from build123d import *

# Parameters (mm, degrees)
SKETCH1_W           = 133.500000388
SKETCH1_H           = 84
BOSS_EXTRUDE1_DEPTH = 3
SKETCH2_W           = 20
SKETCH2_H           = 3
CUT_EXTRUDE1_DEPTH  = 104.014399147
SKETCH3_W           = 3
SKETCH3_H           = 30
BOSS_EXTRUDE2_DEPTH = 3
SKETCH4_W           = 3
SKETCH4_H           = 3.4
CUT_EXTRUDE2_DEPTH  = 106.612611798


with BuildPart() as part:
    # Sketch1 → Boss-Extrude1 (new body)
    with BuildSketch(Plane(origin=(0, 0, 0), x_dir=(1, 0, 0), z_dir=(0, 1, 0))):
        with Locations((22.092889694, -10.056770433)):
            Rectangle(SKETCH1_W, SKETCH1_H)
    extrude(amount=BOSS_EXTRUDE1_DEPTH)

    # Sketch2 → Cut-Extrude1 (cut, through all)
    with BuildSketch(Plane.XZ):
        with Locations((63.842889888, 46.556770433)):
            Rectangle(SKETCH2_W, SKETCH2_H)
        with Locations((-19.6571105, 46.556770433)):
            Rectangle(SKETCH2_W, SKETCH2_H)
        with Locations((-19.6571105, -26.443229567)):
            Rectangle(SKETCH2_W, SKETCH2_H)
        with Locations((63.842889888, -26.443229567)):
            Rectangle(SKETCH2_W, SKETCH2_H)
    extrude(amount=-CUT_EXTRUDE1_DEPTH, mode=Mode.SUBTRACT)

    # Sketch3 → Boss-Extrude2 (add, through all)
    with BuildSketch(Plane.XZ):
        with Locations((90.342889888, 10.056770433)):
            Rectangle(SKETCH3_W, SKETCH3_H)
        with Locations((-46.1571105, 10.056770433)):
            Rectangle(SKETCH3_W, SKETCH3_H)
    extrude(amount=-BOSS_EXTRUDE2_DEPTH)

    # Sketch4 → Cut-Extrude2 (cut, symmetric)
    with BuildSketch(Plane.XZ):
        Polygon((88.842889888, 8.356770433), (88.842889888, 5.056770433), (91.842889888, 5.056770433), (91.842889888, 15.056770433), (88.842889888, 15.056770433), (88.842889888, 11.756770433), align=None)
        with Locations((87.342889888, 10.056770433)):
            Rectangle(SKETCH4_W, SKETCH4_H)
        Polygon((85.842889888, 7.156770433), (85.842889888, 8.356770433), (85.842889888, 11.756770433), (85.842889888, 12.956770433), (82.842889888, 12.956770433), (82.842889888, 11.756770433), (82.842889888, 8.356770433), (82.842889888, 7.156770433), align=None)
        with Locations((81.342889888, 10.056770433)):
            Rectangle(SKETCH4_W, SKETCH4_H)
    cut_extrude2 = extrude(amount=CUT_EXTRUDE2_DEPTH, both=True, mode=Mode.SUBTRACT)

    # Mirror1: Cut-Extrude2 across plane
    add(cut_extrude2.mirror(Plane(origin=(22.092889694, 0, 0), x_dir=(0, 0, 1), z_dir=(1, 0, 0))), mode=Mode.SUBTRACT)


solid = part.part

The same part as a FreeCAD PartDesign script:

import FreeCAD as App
import Part
import Sketcher

V = App.Vector
Q = App.Units.Quantity

doc = App.newDocument("Part")
body = doc.addObject("PartDesign::Body", "Body")

# Sketch on XZ plane
sketch1 = body.newObject("Sketcher::SketchObject", "Sketch")
sketch1.AttachmentSupport = (doc.getObject("XZ_Plane"), [""])
sketch1.MapMode = "FlatFace"
sketch1.addGeometry(Part.LineSegment(V(-45, -32, 0), V(-45, 52, 0)), False)
sketch1.addGeometry(Part.LineSegment(V(-45, 52, 0), V(89, 52, 0)), False)
sketch1.addGeometry(Part.LineSegment(V(89, 52, 0), V(89, -32, 0)), False)
sketch1.addGeometry(Part.LineSegment(V(89, -32, 0), V(-45, -32, 0)), False)
sketch1.addConstraint(Sketcher.Constraint("Coincident", 0, 2, 1, 1))
sketch1.addConstraint(Sketcher.Constraint("Coincident", 1, 2, 2, 1))
sketch1.addConstraint(Sketcher.Constraint("Coincident", 2, 2, 3, 1))
sketch1.addConstraint(Sketcher.Constraint("Coincident", 3, 2, 0, 1))
sketch1.addConstraint(Sketcher.Constraint("Vertical", 0))
sketch1.addConstraint(Sketcher.Constraint("Horizontal", 1))
sketch1.addConstraint(Sketcher.Constraint("Vertical", 2))
sketch1.addConstraint(Sketcher.Constraint("Horizontal", 3))
sketch1.addConstraint(Sketcher.Constraint("DistanceY", 0, 1, 0, 2, Q("84 mm")))
sketch1.addConstraint(Sketcher.Constraint("DistanceX", 1, 1, 1, 2, Q("133.5 mm")))
sketch1.addConstraint(Sketcher.Constraint("DistanceX", 0, 2, -1, 1, Q("44.657111 mm")))
sketch1.addConstraint(Sketcher.Constraint("DistanceY", -1, 1, 0, 2, Q("52.05677 mm")))
pad1 = body.newObject("PartDesign::Pad", "Pad")
pad1.Profile = sketch1
pad1.Length = 3
pad1.Reversed = True

# Sketch on XZ plane
sketch2 = body.newObject("Sketcher::SketchObject", "Sketch001")
sketch2.AttachmentSupport = (doc.getObject("XZ_Plane"), [""])
sketch2.MapMode = "FlatFace"
sketch2.addGeometry(Part.LineSegment(V(53.8, 48.1, 0), V(53.8, 45.1, 0)), False)
sketch2.addGeometry(Part.LineSegment(V(53.8, 45.1, 0), V(73.8, 45.1, 0)), False)
sketch2.addGeometry(Part.LineSegment(V(73.8, 45.1, 0), V(73.8, 48.1, 0)), False)
sketch2.addGeometry(Part.LineSegment(V(73.8, 48.1, 0), V(53.8, 48.1, 0)), False)
sketch2.addGeometry(Part.LineSegment(V(-29.7, 48.1, 0), V(-29.7, 45.1, 0)), False)
sketch2.addGeometry(Part.LineSegment(V(-29.7, 45.1, 0), V(-9.7, 45.1, 0)), False)
sketch2.addGeometry(Part.LineSegment(V(-9.7, 45.1, 0), V(-9.7, 48.1, 0)), False)
sketch2.addGeometry(Part.LineSegment(V(-9.7, 48.1, 0), V(-29.7, 48.1, 0)), False)
sketch2.addGeometry(Part.LineSegment(V(-29.7, -24.9, 0), V(-29.7, -27.9, 0)), False)
sketch2.addGeometry(Part.LineSegment(V(-29.7, -27.9, 0), V(-9.7, -27.9, 0)), False)
sketch2.addGeometry(Part.LineSegment(V(-9.7, -27.9, 0), V(-9.7, -24.9, 0)), False)
sketch2.addGeometry(Part.LineSegment(V(-9.7, -24.9, 0), V(-29.7, -24.9, 0)), False)
sketch2.addGeometry(Part.LineSegment(V(53.8, -24.9, 0), V(53.8, -27.9, 0)), False)
sketch2.addGeometry(Part.LineSegment(V(53.8, -27.9, 0), V(73.8, -27.9, 0)), False)
sketch2.addGeometry(Part.LineSegment(V(73.8, -27.9, 0), V(73.8, -24.9, 0)), False)
sketch2.addGeometry(Part.LineSegment(V(73.8, -24.9, 0), V(53.8, -24.9, 0)), False)
sketch2.addConstraint(Sketcher.Constraint("Coincident", 0, 2, 1, 1))
sketch2.addConstraint(Sketcher.Constraint("Coincident", 1, 2, 2, 1))
sketch2.addConstraint(Sketcher.Constraint("Coincident", 2, 2, 3, 1))
sketch2.addConstraint(Sketcher.Constraint("Coincident", 3, 2, 0, 1))
sketch2.addConstraint(Sketcher.Constraint("Coincident", 4, 2, 5, 1))
sketch2.addConstraint(Sketcher.Constraint("Coincident", 5, 2, 6, 1))
sketch2.addConstraint(Sketcher.Constraint("Coincident", 6, 2, 7, 1))
sketch2.addConstraint(Sketcher.Constraint("Coincident", 7, 2, 4, 1))
sketch2.addConstraint(Sketcher.Constraint("Coincident", 8, 2, 9, 1))
sketch2.addConstraint(Sketcher.Constraint("Coincident", 9, 2, 10, 1))
sketch2.addConstraint(Sketcher.Constraint("Coincident", 10, 2, 11, 1))
sketch2.addConstraint(Sketcher.Constraint("Coincident", 11, 2, 8, 1))
sketch2.addConstraint(Sketcher.Constraint("Coincident", 12, 2, 13, 1))
sketch2.addConstraint(Sketcher.Constraint("Coincident", 13, 2, 14, 1))
sketch2.addConstraint(Sketcher.Constraint("Coincident", 14, 2, 15, 1))
sketch2.addConstraint(Sketcher.Constraint("Coincident", 15, 2, 12, 1))
sketch2.addConstraint(Sketcher.Constraint("Vertical", 0))
sketch2.addConstraint(Sketcher.Constraint("Horizontal", 1))
sketch2.addConstraint(Sketcher.Constraint("Vertical", 2))
sketch2.addConstraint(Sketcher.Constraint("Horizontal", 3))
sketch2.addConstraint(Sketcher.Constraint("Vertical", 4))
sketch2.addConstraint(Sketcher.Constraint("Horizontal", 5))
sketch2.addConstraint(Sketcher.Constraint("Vertical", 6))
sketch2.addConstraint(Sketcher.Constraint("Horizontal", 7))
sketch2.addConstraint(Sketcher.Constraint("Vertical", 8))
sketch2.addConstraint(Sketcher.Constraint("Horizontal", 9))
sketch2.addConstraint(Sketcher.Constraint("Vertical", 10))
sketch2.addConstraint(Sketcher.Constraint("Horizontal", 11))
sketch2.addConstraint(Sketcher.Constraint("Vertical", 12))
sketch2.addConstraint(Sketcher.Constraint("Horizontal", 13))
sketch2.addConstraint(Sketcher.Constraint("Vertical", 14))
sketch2.addConstraint(Sketcher.Constraint("Horizontal", 15))
sketch2.addConstraint(Sketcher.Constraint("Horizontal", 1, 2, 4, 2))
sketch2.addConstraint(Sketcher.Constraint("Horizontal", 3, 2, 6, 2))
sketch2.addConstraint(Sketcher.Constraint("Horizontal", 9, 2, 12, 2))
sketch2.addConstraint(Sketcher.Constraint("Horizontal", 11, 2, 14, 2))
sketch2.addConstraint(Sketcher.Constraint("Vertical", 7, 2, 8, 2))
sketch2.addConstraint(Sketcher.Constraint("Vertical", 6, 2, 9, 2))
sketch2.addConstraint(Sketcher.Constraint("Vertical", 3, 2, 12, 2))
sketch2.addConstraint(Sketcher.Constraint("Vertical", 2, 2, 13, 2))
sketch2.addConstraint(Sketcher.Constraint("Equal", 3, 5))
sketch2.addConstraint(Sketcher.Constraint("Equal", 6, 8))
sketch2.addConstraint(Sketcher.Constraint("DistanceX", 1, 1, 1, 2, Q("20 mm")))
sketch2.addConstraint(Sketcher.Constraint("DistanceY", 0, 2, 0, 1, Q("3 mm")))
sketch2.addConstraint(Sketcher.Constraint("DistanceY", 8, 2, 4, 2, Q("73 mm")))
sketch2.addConstraint(Sketcher.Constraint("DistanceX", 4, 2, 0, 2, Q("83.5 mm")))
sketch2.addConstraint(Sketcher.Constraint("DistanceX", -1, 1, 0, 2, Q("53.84289 mm")))
sketch2.addConstraint(Sketcher.Constraint("DistanceY", -1, 1, 0, 2, Q("45.05677 mm")))
pocket1 = body.newObject("PartDesign::Pocket", "Pocket")
pocket1.Profile = sketch2
pocket1.Type = "ThroughAll"

# Sketch on XZ plane
sketch3 = body.newObject("Sketcher::SketchObject", "Sketch002")
sketch3.AttachmentSupport = (doc.getObject("XZ_Plane"), [""])
sketch3.MapMode = "FlatFace"
sketch3.addGeometry(Part.LineSegment(V(88.8, 25.1, 0), V(88.8, -4.9, 0)), False)
sketch3.addGeometry(Part.LineSegment(V(88.8, -4.9, 0), V(91.8, -4.9, 0)), False)
sketch3.addGeometry(Part.LineSegment(V(91.8, -4.9, 0), V(91.8, 25.1, 0)), False)
sketch3.addGeometry(Part.LineSegment(V(91.8, 25.1, 0), V(88.8, 25.1, 0)), False)
sketch3.addGeometry(Part.LineSegment(V(-47.7, 25.1, 0), V(-47.7, -4.9, 0)), False)
sketch3.addGeometry(Part.LineSegment(V(-47.7, -4.9, 0), V(-44.7, -4.9, 0)), False)
sketch3.addGeometry(Part.LineSegment(V(-44.7, -4.9, 0), V(-44.7, 25.1, 0)), False)
sketch3.addGeometry(Part.LineSegment(V(-44.7, 25.1, 0), V(-47.7, 25.1, 0)), False)
sketch3.addConstraint(Sketcher.Constraint("Coincident", 0, 2, 1, 1))
sketch3.addConstraint(Sketcher.Constraint("Coincident", 1, 2, 2, 1))
sketch3.addConstraint(Sketcher.Constraint("Coincident", 2, 2, 3, 1))
sketch3.addConstraint(Sketcher.Constraint("Coincident", 3, 2, 0, 1))
sketch3.addConstraint(Sketcher.Constraint("Coincident", 4, 2, 5, 1))
sketch3.addConstraint(Sketcher.Constraint("Coincident", 5, 2, 6, 1))
sketch3.addConstraint(Sketcher.Constraint("Coincident", 6, 2, 7, 1))
sketch3.addConstraint(Sketcher.Constraint("Coincident", 7, 2, 4, 1))
sketch3.addConstraint(Sketcher.Constraint("Vertical", 0))
sketch3.addConstraint(Sketcher.Constraint("Horizontal", 1))
sketch3.addConstraint(Sketcher.Constraint("Vertical", 2))
sketch3.addConstraint(Sketcher.Constraint("Horizontal", 3))
sketch3.addConstraint(Sketcher.Constraint("Vertical", 4))
sketch3.addConstraint(Sketcher.Constraint("Horizontal", 5))
sketch3.addConstraint(Sketcher.Constraint("Vertical", 6))
sketch3.addConstraint(Sketcher.Constraint("Horizontal", 7))
sketch3.addConstraint(Sketcher.Constraint("Horizontal", 1, 2, 4, 2))
sketch3.addConstraint(Sketcher.Constraint("Horizontal", 3, 2, 6, 2))
sketch3.addConstraint(Sketcher.Constraint("Equal", 3, 5))
sketch3.addConstraint(Sketcher.Constraint("DistanceX", 1, 1, 1, 2, Q("3 mm")))
sketch3.addConstraint(Sketcher.Constraint("DistanceY", 0, 2, 0, 1, Q("30 mm")))
sketch3.addConstraint(Sketcher.Constraint("DistanceX", 4, 2, 0, 2, Q("136.5 mm")))
sketch3.addConstraint(Sketcher.Constraint("DistanceX", -1, 1, 0, 2, Q("88.84289 mm")))
sketch3.addConstraint(Sketcher.Constraint("DistanceY", 0, 2, -1, 1, Q("4.94323 mm")))
pad2 = body.newObject("PartDesign::Pad", "Pad001")
pad2.Profile = sketch3
pad2.Type = "UpToLast"
pad2.Reversed = True

# Sketch on XZ plane
sketch4 = body.newObject("Sketcher::SketchObject", "Sketch003")
sketch4.AttachmentSupport = (doc.getObject("XZ_Plane"), [""])
sketch4.MapMode = "FlatFace"
sketch4.addGeometry(Part.LineSegment(V(88.8, 5.1, 0), V(91.8, 5.1, 0)), False)
sketch4.addGeometry(Part.LineSegment(V(91.8, 5.1, 0), V(91.8, 15.1, 0)), False)
sketch4.addGeometry(Part.LineSegment(V(91.8, 15.1, 0), V(88.8, 15.1, 0)), False)
sketch4.addGeometry(Part.LineSegment(V(88.8, 15.1, 0), V(88.8, 11.8, 0)), False)
sketch4.addGeometry(Part.LineSegment(V(88.8, 11.8, 0), V(85.8, 11.8, 0)), False)
sketch4.addGeometry(Part.LineSegment(V(85.8, 11.8, 0), V(85.8, 13, 0)), False)
sketch4.addGeometry(Part.LineSegment(V(85.8, 13, 0), V(82.8, 13, 0)), False)
sketch4.addGeometry(Part.LineSegment(V(82.8, 13, 0), V(82.8, 11.8, 0)), False)
sketch4.addGeometry(Part.LineSegment(V(82.8, 11.8, 0), V(79.8, 11.8, 0)), False)
sketch4.addGeometry(Part.LineSegment(V(79.8, 11.8, 0), V(79.8, 8.4, 0)), False)
sketch4.addGeometry(Part.LineSegment(V(79.8, 8.4, 0), V(82.8, 8.4, 0)), False)
sketch4.addGeometry(Part.LineSegment(V(82.8, 8.4, 0), V(82.8, 7.2, 0)), False)
sketch4.addGeometry(Part.LineSegment(V(82.8, 7.2, 0), V(85.8, 7.2, 0)), False)
sketch4.addGeometry(Part.LineSegment(V(85.8, 7.2, 0), V(85.8, 8.4, 0)), False)
sketch4.addGeometry(Part.LineSegment(V(85.8, 8.4, 0), V(88.8, 8.4, 0)), False)
sketch4.addGeometry(Part.LineSegment(V(88.8, 8.4, 0), V(88.8, 5.1, 0)), False)
sketch4.addConstraint(Sketcher.Constraint("Coincident", 0, 2, 1, 1))
sketch4.addConstraint(Sketcher.Constraint("Coincident", 1, 2, 2, 1))
sketch4.addConstraint(Sketcher.Constraint("Coincident", 2, 2, 3, 1))
sketch4.addConstraint(Sketcher.Constraint("Coincident", 3, 2, 4, 1))
sketch4.addConstraint(Sketcher.Constraint("Coincident", 4, 2, 5, 1))
sketch4.addConstraint(Sketcher.Constraint("Coincident", 5, 2, 6, 1))
sketch4.addConstraint(Sketcher.Constraint("Coincident", 6, 2, 7, 1))
sketch4.addConstraint(Sketcher.Constraint("Coincident", 7, 2, 8, 1))
sketch4.addConstraint(Sketcher.Constraint("Coincident", 8, 2, 9, 1))
sketch4.addConstraint(Sketcher.Constraint("Coincident", 9, 2, 10, 1))
sketch4.addConstraint(Sketcher.Constraint("Coincident", 10, 2, 11, 1))
sketch4.addConstraint(Sketcher.Constraint("Coincident", 11, 2, 12, 1))
sketch4.addConstraint(Sketcher.Constraint("Coincident", 12, 2, 13, 1))
sketch4.addConstraint(Sketcher.Constraint("Coincident", 13, 2, 14, 1))
sketch4.addConstraint(Sketcher.Constraint("Coincident", 14, 2, 15, 1))
sketch4.addConstraint(Sketcher.Constraint("Coincident", 15, 2, 0, 1))
sketch4.addConstraint(Sketcher.Constraint("Horizontal", 0))
sketch4.addConstraint(Sketcher.Constraint("Vertical", 1))
sketch4.addConstraint(Sketcher.Constraint("Horizontal", 2))
sketch4.addConstraint(Sketcher.Constraint("Vertical", 3))
sketch4.addConstraint(Sketcher.Constraint("Horizontal", 4))
sketch4.addConstraint(Sketcher.Constraint("Vertical", 5))
sketch4.addConstraint(Sketcher.Constraint("Horizontal", 6))
sketch4.addConstraint(Sketcher.Constraint("Vertical", 7))
sketch4.addConstraint(Sketcher.Constraint("Horizontal", 8))
sketch4.addConstraint(Sketcher.Constraint("Vertical", 9))
sketch4.addConstraint(Sketcher.Constraint("Horizontal", 10))
sketch4.addConstraint(Sketcher.Constraint("Vertical", 11))
sketch4.addConstraint(Sketcher.Constraint("Horizontal", 12))
sketch4.addConstraint(Sketcher.Constraint("Vertical", 13))
sketch4.addConstraint(Sketcher.Constraint("Horizontal", 14))
sketch4.addConstraint(Sketcher.Constraint("Vertical", 15))
sketch4.addConstraint(Sketcher.Constraint("Horizontal", 4, 2, 7, 2))
sketch4.addConstraint(Sketcher.Constraint("Horizontal", 10, 2, 13, 2))
sketch4.addConstraint(Sketcher.Constraint("Vertical", 7, 2, 10, 2))
sketch4.addConstraint(Sketcher.Constraint("Vertical", 5, 2, 12, 2))
sketch4.addConstraint(Sketcher.Constraint("Vertical", 3, 2, 14, 2))
sketch4.addConstraint(Sketcher.Constraint("Equal", 2, 4))
sketch4.addConstraint(Sketcher.Constraint("Equal", 4, 6))
sketch4.addConstraint(Sketcher.Constraint("Equal", 6, 8))
sketch4.addConstraint(Sketcher.Constraint("Equal", 7, 11))
sketch4.addConstraint(Sketcher.Constraint("Equal", 3, 15))
sketch4.addConstraint(Sketcher.Constraint("DistanceX", 0, 1, 0, 2, Q("3 mm")))
sketch4.addConstraint(Sketcher.Constraint("DistanceY", 1, 1, 1, 2, Q("10 mm")))
sketch4.addConstraint(Sketcher.Constraint("DistanceY", 3, 2, 3, 1, Q("3.3 mm")))
sketch4.addConstraint(Sketcher.Constraint("DistanceY", 5, 1, 5, 2, Q("1.2 mm")))
sketch4.addConstraint(Sketcher.Constraint("DistanceX", -1, 1, 0, 2, Q("91.84289 mm")))
sketch4.addConstraint(Sketcher.Constraint("DistanceY", -1, 1, 0, 2, Q("5.05677 mm")))
pocket2 = body.newObject("PartDesign::Pocket", "Pocket001")
pocket2.Profile = sketch4
pocket2.Length = 213.225224
pocket2.Midplane = True
doc.recompute()

datumplane = body.newObject("PartDesign::Plane", "DatumPlane")
datumplane.AttachmentSupport = (doc.getObject("YZ_Plane"), [""])
datumplane.MapMode = "FlatFace"
datumplane.AttachmentOffset = App.Placement(V(0, 0, 22.09289), App.Rotation())
mirrored = body.newObject("PartDesign::Mirrored", "Mirrored")
mirrored.Originals = [pocket2]
mirrored.MirrorPlane = (datumplane, [""])
body.Tip = mirrored

doc.recompute()
